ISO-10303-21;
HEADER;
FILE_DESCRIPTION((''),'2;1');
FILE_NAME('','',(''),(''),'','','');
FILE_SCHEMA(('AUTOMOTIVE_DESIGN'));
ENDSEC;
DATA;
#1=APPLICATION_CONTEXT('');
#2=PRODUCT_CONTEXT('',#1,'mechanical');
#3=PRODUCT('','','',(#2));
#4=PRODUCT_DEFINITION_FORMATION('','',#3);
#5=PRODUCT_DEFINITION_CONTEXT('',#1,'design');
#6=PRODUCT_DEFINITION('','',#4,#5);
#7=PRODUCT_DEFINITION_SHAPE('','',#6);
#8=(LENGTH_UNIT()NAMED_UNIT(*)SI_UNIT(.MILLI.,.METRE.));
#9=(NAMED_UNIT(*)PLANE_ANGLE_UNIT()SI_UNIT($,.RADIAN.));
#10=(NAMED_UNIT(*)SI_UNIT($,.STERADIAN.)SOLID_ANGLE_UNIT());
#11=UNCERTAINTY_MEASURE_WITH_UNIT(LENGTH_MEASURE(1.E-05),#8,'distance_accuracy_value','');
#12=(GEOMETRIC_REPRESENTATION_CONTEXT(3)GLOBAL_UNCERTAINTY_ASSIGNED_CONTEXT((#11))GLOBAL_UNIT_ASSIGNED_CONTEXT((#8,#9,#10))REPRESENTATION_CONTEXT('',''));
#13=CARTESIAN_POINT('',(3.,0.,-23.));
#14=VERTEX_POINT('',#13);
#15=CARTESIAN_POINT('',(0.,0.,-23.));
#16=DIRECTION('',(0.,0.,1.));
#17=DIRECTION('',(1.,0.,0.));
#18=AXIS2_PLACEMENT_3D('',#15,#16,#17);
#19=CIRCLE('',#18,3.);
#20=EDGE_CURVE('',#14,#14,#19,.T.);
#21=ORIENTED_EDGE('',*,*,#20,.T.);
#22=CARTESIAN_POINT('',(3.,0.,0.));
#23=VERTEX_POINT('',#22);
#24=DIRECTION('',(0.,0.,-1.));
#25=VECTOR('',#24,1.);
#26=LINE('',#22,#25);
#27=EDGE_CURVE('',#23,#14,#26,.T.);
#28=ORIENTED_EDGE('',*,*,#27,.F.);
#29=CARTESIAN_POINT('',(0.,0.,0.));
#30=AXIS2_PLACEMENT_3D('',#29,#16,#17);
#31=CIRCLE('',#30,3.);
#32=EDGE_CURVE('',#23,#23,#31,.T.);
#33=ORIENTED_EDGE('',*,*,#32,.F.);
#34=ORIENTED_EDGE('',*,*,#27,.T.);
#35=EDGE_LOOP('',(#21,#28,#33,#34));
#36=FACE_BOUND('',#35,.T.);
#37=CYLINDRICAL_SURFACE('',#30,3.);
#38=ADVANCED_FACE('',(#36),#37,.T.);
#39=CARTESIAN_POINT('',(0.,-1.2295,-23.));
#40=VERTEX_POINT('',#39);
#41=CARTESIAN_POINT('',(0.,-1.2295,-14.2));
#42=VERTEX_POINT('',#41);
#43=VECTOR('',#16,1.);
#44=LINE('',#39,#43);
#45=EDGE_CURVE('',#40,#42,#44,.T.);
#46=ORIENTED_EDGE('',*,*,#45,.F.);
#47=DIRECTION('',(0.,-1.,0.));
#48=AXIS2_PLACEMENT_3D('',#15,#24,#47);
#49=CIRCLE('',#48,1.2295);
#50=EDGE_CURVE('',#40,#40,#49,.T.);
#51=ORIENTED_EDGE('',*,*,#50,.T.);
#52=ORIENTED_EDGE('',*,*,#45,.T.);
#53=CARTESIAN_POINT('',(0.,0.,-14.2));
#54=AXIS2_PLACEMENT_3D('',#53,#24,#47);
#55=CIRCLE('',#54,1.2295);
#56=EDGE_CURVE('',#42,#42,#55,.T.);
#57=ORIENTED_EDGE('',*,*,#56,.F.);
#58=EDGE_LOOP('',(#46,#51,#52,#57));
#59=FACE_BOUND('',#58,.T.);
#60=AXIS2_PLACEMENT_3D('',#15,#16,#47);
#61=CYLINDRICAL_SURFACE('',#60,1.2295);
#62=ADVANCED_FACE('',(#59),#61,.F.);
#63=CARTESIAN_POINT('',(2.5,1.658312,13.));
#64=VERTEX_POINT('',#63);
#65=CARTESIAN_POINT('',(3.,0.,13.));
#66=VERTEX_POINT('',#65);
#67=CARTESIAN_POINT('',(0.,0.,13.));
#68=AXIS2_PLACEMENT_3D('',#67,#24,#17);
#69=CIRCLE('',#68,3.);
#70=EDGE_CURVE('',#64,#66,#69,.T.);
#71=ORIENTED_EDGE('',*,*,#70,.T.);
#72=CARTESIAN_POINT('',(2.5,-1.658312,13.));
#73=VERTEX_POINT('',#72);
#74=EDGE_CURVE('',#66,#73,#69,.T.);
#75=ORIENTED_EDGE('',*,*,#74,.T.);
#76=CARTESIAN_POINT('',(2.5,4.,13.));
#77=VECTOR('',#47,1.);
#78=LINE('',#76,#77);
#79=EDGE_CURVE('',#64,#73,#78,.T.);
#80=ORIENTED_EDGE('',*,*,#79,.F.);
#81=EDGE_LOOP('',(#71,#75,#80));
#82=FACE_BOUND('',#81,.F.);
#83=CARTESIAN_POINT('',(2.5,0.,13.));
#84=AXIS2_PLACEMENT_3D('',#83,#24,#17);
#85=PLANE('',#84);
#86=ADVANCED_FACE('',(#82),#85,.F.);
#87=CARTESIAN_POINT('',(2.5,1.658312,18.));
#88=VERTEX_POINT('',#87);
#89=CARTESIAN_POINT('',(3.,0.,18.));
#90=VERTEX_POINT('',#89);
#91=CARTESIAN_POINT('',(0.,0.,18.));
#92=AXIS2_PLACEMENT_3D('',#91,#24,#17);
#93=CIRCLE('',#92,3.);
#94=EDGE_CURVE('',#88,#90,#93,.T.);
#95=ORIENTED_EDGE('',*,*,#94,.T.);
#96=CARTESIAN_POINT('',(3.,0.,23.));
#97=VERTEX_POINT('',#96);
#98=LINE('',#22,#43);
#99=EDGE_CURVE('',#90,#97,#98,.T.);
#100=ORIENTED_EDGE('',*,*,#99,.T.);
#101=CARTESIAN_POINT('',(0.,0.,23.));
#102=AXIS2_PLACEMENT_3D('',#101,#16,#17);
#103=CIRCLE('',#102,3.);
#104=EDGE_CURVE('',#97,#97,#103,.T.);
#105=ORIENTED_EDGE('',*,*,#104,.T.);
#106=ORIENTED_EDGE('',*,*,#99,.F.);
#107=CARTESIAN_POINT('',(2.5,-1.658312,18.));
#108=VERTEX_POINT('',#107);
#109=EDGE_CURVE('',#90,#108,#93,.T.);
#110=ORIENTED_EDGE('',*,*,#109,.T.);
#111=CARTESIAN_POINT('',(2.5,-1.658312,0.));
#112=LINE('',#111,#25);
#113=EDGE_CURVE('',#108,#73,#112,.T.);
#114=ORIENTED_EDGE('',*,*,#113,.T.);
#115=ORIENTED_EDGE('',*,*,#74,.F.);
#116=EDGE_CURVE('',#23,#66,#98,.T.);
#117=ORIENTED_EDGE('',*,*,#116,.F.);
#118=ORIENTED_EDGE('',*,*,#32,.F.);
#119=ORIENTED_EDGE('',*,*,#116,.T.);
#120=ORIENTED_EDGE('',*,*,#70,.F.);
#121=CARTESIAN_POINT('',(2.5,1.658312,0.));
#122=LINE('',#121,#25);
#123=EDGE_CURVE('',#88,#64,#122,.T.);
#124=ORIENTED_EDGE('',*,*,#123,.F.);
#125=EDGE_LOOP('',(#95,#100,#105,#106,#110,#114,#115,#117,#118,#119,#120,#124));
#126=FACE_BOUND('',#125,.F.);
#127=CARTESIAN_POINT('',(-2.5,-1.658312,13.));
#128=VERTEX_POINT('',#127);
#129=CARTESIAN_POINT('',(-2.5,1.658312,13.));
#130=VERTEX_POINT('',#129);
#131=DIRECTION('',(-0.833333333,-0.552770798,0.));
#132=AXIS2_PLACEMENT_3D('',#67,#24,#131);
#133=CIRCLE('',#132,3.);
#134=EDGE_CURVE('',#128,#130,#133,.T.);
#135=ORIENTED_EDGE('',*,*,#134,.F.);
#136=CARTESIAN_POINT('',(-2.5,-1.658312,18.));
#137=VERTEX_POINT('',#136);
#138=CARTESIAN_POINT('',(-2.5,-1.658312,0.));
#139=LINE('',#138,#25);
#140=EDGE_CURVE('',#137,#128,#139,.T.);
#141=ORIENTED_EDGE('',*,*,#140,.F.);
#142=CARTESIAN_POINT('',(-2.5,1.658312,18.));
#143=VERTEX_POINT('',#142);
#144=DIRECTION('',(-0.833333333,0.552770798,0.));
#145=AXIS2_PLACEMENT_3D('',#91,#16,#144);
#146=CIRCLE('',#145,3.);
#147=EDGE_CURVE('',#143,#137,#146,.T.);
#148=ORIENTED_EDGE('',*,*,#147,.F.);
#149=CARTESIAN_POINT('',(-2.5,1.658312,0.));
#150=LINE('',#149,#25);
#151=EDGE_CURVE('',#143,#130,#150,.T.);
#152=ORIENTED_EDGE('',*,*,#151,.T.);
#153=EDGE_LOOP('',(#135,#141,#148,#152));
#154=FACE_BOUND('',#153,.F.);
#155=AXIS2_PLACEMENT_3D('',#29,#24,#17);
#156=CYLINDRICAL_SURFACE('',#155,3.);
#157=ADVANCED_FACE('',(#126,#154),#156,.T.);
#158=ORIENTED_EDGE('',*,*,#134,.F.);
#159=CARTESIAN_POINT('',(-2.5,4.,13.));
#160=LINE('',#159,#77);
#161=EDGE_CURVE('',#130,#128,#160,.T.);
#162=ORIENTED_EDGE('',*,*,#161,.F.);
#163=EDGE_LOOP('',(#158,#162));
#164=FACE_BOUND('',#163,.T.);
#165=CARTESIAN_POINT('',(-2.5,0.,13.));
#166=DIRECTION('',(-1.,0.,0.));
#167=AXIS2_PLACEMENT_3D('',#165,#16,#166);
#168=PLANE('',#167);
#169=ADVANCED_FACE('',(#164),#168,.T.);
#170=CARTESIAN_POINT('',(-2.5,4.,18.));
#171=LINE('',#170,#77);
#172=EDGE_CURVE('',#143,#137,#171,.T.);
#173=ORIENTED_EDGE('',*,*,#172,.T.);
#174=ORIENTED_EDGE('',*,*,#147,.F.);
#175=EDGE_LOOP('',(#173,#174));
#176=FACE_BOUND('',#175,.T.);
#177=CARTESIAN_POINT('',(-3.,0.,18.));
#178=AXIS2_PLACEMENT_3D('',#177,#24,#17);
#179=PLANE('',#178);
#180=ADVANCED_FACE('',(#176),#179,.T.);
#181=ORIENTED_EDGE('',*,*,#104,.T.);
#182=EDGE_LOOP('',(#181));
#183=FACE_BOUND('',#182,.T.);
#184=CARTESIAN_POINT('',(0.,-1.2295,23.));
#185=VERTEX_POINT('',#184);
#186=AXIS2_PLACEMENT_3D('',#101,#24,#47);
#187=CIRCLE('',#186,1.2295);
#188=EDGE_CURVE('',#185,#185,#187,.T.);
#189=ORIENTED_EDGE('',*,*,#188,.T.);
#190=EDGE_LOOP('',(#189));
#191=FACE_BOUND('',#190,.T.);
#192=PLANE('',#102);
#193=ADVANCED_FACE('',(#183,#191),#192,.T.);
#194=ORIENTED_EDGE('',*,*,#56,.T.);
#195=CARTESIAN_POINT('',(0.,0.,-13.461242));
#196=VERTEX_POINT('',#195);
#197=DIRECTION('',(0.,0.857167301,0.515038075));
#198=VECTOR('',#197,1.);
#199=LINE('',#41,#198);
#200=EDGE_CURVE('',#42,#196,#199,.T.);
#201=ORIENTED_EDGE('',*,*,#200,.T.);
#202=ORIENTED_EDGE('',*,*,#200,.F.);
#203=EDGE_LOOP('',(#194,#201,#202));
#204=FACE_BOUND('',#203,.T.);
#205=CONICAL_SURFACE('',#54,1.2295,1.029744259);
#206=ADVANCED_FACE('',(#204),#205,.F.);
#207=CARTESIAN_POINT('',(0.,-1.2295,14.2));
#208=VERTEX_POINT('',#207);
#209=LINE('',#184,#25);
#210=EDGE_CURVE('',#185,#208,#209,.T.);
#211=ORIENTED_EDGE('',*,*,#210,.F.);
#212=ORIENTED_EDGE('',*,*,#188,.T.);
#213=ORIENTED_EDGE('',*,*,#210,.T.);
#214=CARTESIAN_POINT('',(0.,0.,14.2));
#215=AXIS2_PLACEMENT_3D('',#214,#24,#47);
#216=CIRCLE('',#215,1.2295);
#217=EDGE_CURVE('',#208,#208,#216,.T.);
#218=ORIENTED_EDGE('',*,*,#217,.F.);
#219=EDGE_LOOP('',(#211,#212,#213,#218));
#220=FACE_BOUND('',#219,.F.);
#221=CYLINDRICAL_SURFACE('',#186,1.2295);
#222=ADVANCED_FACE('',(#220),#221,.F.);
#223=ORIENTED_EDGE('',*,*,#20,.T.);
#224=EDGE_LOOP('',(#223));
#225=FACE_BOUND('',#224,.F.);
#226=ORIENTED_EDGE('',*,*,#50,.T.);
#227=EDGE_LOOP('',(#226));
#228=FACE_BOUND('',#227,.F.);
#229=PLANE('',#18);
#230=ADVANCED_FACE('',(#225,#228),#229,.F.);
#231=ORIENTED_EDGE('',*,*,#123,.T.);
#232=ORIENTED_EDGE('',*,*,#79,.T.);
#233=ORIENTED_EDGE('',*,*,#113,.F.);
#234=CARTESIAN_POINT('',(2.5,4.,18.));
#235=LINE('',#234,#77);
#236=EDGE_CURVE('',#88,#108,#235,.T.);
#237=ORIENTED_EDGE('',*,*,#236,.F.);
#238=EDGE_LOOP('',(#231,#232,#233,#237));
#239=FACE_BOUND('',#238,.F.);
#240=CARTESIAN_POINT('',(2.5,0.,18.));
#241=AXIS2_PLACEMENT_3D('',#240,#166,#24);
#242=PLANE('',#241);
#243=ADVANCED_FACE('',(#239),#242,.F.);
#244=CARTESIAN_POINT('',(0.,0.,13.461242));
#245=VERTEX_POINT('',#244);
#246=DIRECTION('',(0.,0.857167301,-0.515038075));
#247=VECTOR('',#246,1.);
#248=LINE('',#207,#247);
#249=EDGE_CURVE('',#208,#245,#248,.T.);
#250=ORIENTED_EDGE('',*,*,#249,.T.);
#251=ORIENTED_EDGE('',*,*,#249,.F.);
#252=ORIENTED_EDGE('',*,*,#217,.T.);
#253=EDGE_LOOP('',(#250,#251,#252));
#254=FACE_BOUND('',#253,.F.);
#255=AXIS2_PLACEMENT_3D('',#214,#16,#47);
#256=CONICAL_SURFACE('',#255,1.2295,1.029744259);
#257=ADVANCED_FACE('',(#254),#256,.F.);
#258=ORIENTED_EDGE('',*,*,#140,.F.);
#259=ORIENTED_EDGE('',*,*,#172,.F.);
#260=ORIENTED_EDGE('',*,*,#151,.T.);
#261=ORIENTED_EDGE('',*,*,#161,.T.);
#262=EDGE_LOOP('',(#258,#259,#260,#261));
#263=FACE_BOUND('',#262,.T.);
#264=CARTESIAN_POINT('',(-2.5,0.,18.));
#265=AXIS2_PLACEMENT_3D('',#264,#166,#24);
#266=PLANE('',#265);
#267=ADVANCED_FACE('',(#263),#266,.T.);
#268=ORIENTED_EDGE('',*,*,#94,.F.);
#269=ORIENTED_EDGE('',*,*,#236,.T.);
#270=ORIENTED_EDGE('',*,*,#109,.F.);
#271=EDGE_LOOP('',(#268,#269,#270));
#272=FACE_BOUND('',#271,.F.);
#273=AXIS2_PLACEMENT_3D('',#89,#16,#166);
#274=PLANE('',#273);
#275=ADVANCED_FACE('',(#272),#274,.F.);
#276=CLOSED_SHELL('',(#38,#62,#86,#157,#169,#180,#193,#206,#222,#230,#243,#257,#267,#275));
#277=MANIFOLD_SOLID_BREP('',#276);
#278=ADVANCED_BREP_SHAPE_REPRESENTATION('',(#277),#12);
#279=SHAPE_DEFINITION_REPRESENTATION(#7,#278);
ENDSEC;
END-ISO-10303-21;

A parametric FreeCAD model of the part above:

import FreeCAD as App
import Part
import Sketcher

V = App.Vector

doc = App.newDocument("Part")
params = doc.addObject("Spreadsheet::Sheet", "Params")
for row, (alias, value) in enumerate([
    ("sketch1_diameter", "6 mm"),
    ("pad1_length", "46 mm"),
    ("hole_diameter", "2.459 mm"),
    ("hole_depth", "8.8 mm"),
    ("sketch3_height", "5 mm"),
    ("sketch3_width", "0.5 mm"),
], start=1):
    params.set(f"A{row}", alias)
    params.set(f"B{row}", "=" + value)
    params.setAlias(f"B{row}", alias)

body = doc.addObject("PartDesign::Body", "Body")

sketch1 = doc.addObject("Sketcher::SketchObject", "Sketch")
body.addObject(sketch1)
sketch1.AttachmentSupport = (doc.XY_Plane, [""])
sketch1.MapMode = "FlatFace"
sketch1.addGeometry(Part.Circle(V(0, 0, 0), V(0, 0, 1), 3), False)
sketch1.addConstraint([
    Sketcher.Constraint("Coincident", 0, 3, -1, 1),
    Sketcher.Constraint("Diameter", 0, 6.0),
])
sketch1.setExpression("Constraints[1]", "Params.sketch1_diameter")
pad1 = doc.addObject("PartDesign::Pad", "Pad")
body.addObject(pad1)
pad1.Profile = sketch1
pad1.setExpression("Length", "Params.pad1_length")
pad1.Midplane = True

sketch2 = doc.addObject("Sketcher::SketchObject", "Sketch001")
body.addObject(sketch2)
sketch2.AttachmentSupport = (doc.XY_Plane, [""])
sketch2.MapMode = "FlatFace"
sketch2.AttachmentOffset = App.Placement(V(0, 0, 23), App.Rotation())
sketch2.addGeometry(Part.Circle(V(0, 0, 0), V(0, 0, 1), 1.2295), False)
sketch2.addConstraint([
    Sketcher.Constraint("Coincident", 0, 3, -1, 1),
    Sketcher.Constraint("Diameter", 0, 2.459),
])
doc.recompute()
hole = doc.addObject("PartDesign::Hole", "Hole")
body.addObject(hole)
hole.Profile = sketch2
hole.ThreadType = "None"
hole.setExpression("Diameter", "Params.hole_diameter")
hole.DepthType = "Dimension"
hole.setExpression("Depth", "Params.hole_depth")
hole.DrillPoint = "Angled"
hole.DrillPointAngle = 118

sketch3 = doc.addObject("Sketcher::SketchObject", "Sketch002")
body.addObject(sketch3)
sketch3.AttachmentSupport = (doc.XZ_Plane, [""])
sketch3.MapMode = "FlatFace"
sketch3.addGeometry([
    Part.LineSegment(V(-2.5, 13, 0), V(-3, 13, 0)),
    Part.LineSegment(V(-3, 13, 0), V(-3, 18, 0)),
    Part.LineSegment(V(-3, 18, 0), V(-2.5, 18, 0)),
    Part.LineSegment(V(-2.5, 18, 0), V(-2.5, 13, 0)),
    Part.LineSegment(V(2.5, 18, 0), V(3, 18, 0)),
    Part.LineSegment(V(3, 18, 0), V(3, 13, 0)),
    Part.LineSegment(V(3, 13, 0), V(2.5, 13, 0)),
    Part.LineSegment(V(2.5, 13, 0), V(2.5, 18, 0)),
], False)
sketch3.addConstraint([
    Sketcher.Constraint("Coincident", 0, 2, 1, 1),
    Sketcher.Constraint("Coincident", 1, 2, 2, 1),
    Sketcher.Constraint("Coincident", 2, 2, 3, 1),
    Sketcher.Constraint("Coincident", 3, 2, 0, 1),
    Sketcher.Constraint("Coincident", 4, 2, 5, 1),
    Sketcher.Constraint("Coincident", 5, 2, 6, 1),
    Sketcher.Constraint("Coincident", 6, 2, 7, 1),
    Sketcher.Constraint("Coincident", 7, 2, 4, 1),
    Sketcher.Constraint("Horizontal", 0),
    Sketcher.Constraint("Vertical", 1),
    Sketcher.Constraint("Horizontal", 2),
    Sketcher.Constraint("Vertical", 3),
    Sketcher.Constraint("Horizontal", 4),
    Sketcher.Constraint("Vertical", 5),
    Sketcher.Constraint("Horizontal", 6),
    Sketcher.Constraint("Vertical", 7),
    Sketcher.Constraint("Symmetric", 1, 2, 4, 2, -2),
    Sketcher.Constraint("Symmetric", 3, 2, 6, 2, -2),
    Sketcher.Constraint("DistanceY", 1, 1, 1, 2, 5.0),
    Sketcher.Constraint("DistanceX", 0, 2, 0, 1, 0.5),
    Sketcher.Constraint("DistanceX", 1, 2, 4, 2, 6.0),
    Sketcher.Constraint("DistanceY", -1, 1, 0, 2, 13.0),
])
sketch3.setExpression("Constraints[18]", "Params.sketch3_height")
sketch3.setExpression("Constraints[19]", "Params.sketch3_width")
pocket1 = doc.addObject("PartDesign::Pocket", "Pocket")
body.addObject(pocket1)
pocket1.Profile = sketch3
pocket1.Type = "ThroughAll"
pocket1.Midplane = True
doc.recompute()

mirrored = doc.addObject("PartDesign::Mirrored", "Mirrored")
body.addObject(mirrored)
mirrored.Originals = [hole]
mirrored.MirrorPlane = (doc.XY_Plane, [""])
body.Tip = mirrored

doc.recompute()
